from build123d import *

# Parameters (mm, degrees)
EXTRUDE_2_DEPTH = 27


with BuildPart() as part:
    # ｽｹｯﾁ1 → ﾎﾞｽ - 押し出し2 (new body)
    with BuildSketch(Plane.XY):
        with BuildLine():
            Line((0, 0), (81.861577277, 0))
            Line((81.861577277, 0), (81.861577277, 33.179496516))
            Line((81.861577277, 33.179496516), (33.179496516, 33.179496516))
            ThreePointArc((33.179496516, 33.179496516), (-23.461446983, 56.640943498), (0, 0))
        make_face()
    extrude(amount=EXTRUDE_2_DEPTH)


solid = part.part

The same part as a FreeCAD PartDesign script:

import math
import FreeCAD as App
import Part
import Sketcher
from FreeCAD import Vector
Q = App.Units.Quantity

doc = App.newDocument("Part")
body = doc.addObject("PartDesign::Body", "Body")

# Sketch on XY plane
sketch1 = body.newObject("Sketcher::SketchObject", "Sketch")
sketch1.AttachmentSupport = (doc.getObject("XY_Plane"), [""])
sketch1.MapMode = "FlatFace"
sketch1.addGeometry([
    Part.LineSegment(Vector(0, 0, 0), Vector(81.861577, 0, 0)),
    Part.LineSegment(Vector(81.861577, 0, 0), Vector(81.861577, 33.179497, 0)),
    Part.LineSegment(Vector(81.861577, 33.179497, 0), Vector(33.179497, 33.179497, 0)),
    Part.ArcOfCircle(Part.Circle(Vector(0, 33.179497, 0), Vector(0, 0, 1), 33.179497), math.radians(0), math.radians(270)),
], False)
sketch1.addConstraint([
    Sketcher.Constraint("Coincident", 0, 2, 1, 1),
    Sketcher.Constraint("Coincident", 1, 2, 2, 1),
    Sketcher.Constraint("Coincident", 2, 2, 3, 1),
    Sketcher.Constraint("Tangent", 3, 2, 0, 1),
    Sketcher.Constraint("Horizontal", 0),
    Sketcher.Constraint("Vertical", 1),
    Sketcher.Constraint("Horizontal", 2),
    Sketcher.Constraint("Coincident", 3, 2, -1, 1),
    Sketcher.Constraint("Horizontal", 3, 3, 1, 2),
    Sketcher.Constraint("Radius", 3, Q("33.179497 mm")),
    Sketcher.Constraint("DistanceX", 2, 2, 2, 1, Q("48.682081 mm")),
])
pad1 = body.newObject("PartDesign::Pad", "Pad")
pad1.Profile = sketch1
pad1.Length = 27

doc.recompute()
